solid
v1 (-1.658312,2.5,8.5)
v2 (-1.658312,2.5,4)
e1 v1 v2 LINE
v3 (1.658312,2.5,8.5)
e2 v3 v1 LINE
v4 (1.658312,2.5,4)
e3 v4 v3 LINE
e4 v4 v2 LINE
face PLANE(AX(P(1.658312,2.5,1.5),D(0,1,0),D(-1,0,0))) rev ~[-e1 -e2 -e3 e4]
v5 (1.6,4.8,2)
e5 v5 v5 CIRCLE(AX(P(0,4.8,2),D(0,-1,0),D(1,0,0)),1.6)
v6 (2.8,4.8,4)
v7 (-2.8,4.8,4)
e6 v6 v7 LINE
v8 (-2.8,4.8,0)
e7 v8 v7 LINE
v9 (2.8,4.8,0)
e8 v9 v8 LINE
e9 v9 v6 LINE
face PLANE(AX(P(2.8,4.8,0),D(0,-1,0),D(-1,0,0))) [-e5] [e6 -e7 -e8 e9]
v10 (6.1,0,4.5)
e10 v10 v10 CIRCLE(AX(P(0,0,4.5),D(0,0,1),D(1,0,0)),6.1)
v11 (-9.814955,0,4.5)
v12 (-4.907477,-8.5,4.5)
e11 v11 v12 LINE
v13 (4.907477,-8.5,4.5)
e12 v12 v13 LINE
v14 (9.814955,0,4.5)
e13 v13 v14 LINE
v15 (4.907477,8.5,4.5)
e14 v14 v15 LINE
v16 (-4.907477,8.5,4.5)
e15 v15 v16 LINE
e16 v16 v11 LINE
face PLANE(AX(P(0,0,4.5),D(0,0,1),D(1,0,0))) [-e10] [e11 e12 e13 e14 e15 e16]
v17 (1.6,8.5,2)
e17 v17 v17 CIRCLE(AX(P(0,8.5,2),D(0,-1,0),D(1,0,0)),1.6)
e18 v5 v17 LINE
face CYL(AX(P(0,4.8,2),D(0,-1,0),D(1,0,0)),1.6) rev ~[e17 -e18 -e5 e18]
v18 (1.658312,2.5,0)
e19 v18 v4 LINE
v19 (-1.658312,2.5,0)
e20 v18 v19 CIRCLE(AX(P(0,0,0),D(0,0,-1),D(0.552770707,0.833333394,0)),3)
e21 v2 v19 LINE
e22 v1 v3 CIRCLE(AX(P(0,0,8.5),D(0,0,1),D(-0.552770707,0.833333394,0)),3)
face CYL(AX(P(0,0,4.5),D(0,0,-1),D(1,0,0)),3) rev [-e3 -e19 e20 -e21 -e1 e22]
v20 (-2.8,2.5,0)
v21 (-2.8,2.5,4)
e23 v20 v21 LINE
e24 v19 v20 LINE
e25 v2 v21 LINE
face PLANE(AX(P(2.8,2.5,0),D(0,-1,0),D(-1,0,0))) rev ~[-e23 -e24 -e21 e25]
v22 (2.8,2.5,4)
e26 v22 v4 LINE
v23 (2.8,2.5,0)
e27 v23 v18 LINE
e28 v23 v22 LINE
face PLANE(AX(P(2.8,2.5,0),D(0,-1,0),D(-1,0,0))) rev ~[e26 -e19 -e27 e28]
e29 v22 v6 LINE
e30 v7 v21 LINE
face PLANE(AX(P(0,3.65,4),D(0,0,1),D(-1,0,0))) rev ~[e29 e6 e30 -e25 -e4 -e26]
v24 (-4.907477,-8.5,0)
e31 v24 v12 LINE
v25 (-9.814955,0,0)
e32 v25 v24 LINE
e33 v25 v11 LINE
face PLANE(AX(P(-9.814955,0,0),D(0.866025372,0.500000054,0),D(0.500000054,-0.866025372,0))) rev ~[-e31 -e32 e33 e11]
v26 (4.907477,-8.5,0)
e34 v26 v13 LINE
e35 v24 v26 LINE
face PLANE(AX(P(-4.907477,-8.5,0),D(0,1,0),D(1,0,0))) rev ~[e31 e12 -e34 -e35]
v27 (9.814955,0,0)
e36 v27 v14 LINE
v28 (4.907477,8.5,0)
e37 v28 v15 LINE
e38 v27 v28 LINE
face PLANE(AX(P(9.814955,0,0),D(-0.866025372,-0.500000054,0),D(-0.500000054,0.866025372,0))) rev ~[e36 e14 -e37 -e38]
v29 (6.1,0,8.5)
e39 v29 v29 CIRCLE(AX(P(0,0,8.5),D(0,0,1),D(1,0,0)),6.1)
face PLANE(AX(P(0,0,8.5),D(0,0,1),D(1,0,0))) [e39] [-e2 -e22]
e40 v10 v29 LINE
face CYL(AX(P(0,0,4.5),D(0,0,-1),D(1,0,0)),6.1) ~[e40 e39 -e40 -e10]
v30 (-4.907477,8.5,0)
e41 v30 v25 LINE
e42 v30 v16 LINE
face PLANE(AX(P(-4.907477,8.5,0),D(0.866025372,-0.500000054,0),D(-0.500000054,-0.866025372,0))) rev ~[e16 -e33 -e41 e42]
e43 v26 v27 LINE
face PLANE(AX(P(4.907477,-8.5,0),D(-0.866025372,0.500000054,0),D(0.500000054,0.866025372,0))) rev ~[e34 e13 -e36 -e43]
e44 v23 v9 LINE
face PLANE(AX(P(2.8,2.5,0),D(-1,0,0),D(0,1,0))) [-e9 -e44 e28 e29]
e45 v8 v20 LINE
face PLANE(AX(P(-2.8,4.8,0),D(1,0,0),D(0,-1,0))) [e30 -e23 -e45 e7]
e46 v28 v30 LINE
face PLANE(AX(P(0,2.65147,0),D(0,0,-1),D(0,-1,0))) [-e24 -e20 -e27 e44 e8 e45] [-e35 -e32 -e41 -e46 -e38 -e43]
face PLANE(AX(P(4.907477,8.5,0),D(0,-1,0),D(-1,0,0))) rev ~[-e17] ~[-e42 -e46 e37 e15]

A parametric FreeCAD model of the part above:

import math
import FreeCAD as App
import Part
import Sketcher
from FreeCAD import Vector
Q = App.Units.Quantity

doc = App.newDocument("Part")
params = doc.addObject("Spreadsheet::Sheet", "Params")
for row, (alias, value) in enumerate([
    ("sketch1_diameter", "6 mm"),
    ("pad1_length", "4.5 mm"),
    ("sketch2_diameter", "6 mm"),
    ("sketch2_diameter2", "12.2 mm"),
    ("pad2_length", "10 mm"),
    ("sketch3_radius", "2.999999 mm"),
    ("pad3_length", "13 mm"),
    ("sketch4_diameter", "12.2 mm"),
    ("pocket1_length", "6 mm"),
    ("sketch5_radius", "2.999999 mm"),
    ("pad4_length", "1.5 mm"),
    ("sketch6_width", "5.6 mm"),
    ("sketch6_height", "2.3 mm"),
    ("pocket2_length", "4 mm"),
    ("sketch7_diameter", "3.2 mm"),
], start=1):
    params.set(f"A{row}", alias)
    params.set(f"B{row}", "=" + value)
    params.setAlias(f"B{row}", alias)

body = doc.addObject("PartDesign::Body", "Body")

# Sketch on XY plane
sketch1 = body.newObject("Sketcher::SketchObject", "Sketch")
sketch1.AttachmentSupport = (doc.getObject("XY_Plane"), [""])
sketch1.MapMode = "FlatFace"
sketch1.addGeometry([
    Part.LineSegment(Vector(9.814955, 0, 0), Vector(4.907477, 8.5, 0)),  # 0
    Part.LineSegment(Vector(4.907477, 8.5, 0), Vector(-4.907477, 8.5, 0)),  # 1
    Part.LineSegment(Vector(-4.907477, 8.5, 0), Vector(-9.814955, 0, 0)),  # 2
    Part.LineSegment(Vector(-9.814955, 0, 0), Vector(-4.907477, -8.5, 0)),  # 3
    Part.LineSegment(Vector(-4.907477, -8.5, 0), Vector(4.907477, -8.5, 0)),  # 4
    Part.LineSegment(Vector(4.907477, -8.5, 0), Vector(9.814955, 0, 0)),  # 5
    Part.Circle(Vector(0, 0, 0), Vector(0, 0, 1), 3),  # 6
], False)
sketch1.addConstraint([
    Sketcher.Constraint("Coincident", 0, 2, 1, 1),
    Sketcher.Constraint("Coincident", 1, 2, 2, 1),
    Sketcher.Constraint("Coincident", 2, 2, 3, 1),
    Sketcher.Constraint("Coincident", 3, 2, 4, 1),
    Sketcher.Constraint("Coincident", 4, 2, 5, 1),
    Sketcher.Constraint("Coincident", 5, 2, 0, 1),
    Sketcher.Constraint("Horizontal", 1),
    Sketcher.Constraint("Horizontal", 4),
    Sketcher.Constraint("Coincident", 6, 3, -1, 1),
    Sketcher.Constraint("Symmetric", 0, 2, 3, 2, -1, 1),
    Sketcher.Constraint("Symmetric", 2, 2, 5, 2, -1, 1),
    Sketcher.Constraint("PointOnObject", 2, 2, -1),
    Sketcher.Constraint("Parallel", 2, 5),
    Sketcher.Constraint("Vertical", 1, 2, 3, 2),
    Sketcher.Constraint("Diameter", 6, Q("6 mm")),
    Sketcher.Constraint("Angle", 0, Q("120.000004 deg")),
    Sketcher.Constraint("DistanceY", 3, 2, 1, 2, Q("17 mm")),
    Sketcher.Constraint("DistanceX", 1, 2, 1, 1, Q("9.814954 mm")),
])
sketch1.setExpression("Constraints[14]", "Params.sketch1_diameter")
pad1 = body.newObject("PartDesign::Pad", "Pad")
pad1.Profile = sketch1
pad1.setExpression("Length", "Params.pad1_length")

# Sketch on XY plane
sketch2 = body.newObject("Sketcher::SketchObject", "Sketch001")
sketch2.AttachmentSupport = (doc.getObject("XY_Plane"), [""])
sketch2.MapMode = "FlatFace"
sketch2.AttachmentOffset = App.Placement(Vector(0, 0, 4.5), App.Rotation())
sketch2.addGeometry([
    Part.Circle(Vector(0, 0, 0), Vector(0, 0, 1), 6.1),
    Part.Circle(Vector(0, 0, 0), Vector(0, 0, 1), 3),
], False)
sketch2.addConstraint([
    Sketcher.Constraint("Coincident", 0, 3, -1, 1),
    Sketcher.Constraint("Coincident", 1, 3, -1, 1),
    Sketcher.Constraint("Diameter", 1, Q("6 mm")),
    Sketcher.Constraint("Diameter", 0, Q("12.2 mm")),
])
sketch2.setExpression("Constraints[2]", "Params.sketch2_diameter")
sketch2.setExpression("Constraints[3]", "Params.sketch2_diameter2")
pad2 = body.newObject("PartDesign::Pad", "Pad001")
pad2.Profile = sketch2
pad2.setExpression("Length", "Params.pad2_length")

# Sketch on XY plane
sketch3 = body.newObject("Sketcher::SketchObject", "Sketch002")
sketch3.AttachmentSupport = (doc.getObject("XY_Plane"), [""])
sketch3.MapMode = "FlatFace"
sketch3.AttachmentOffset = App.Placement(Vector(0, 0, 14.5), App.Rotation())
sketch3.addGeometry([
    Part.LineSegment(Vector(-1.658312, 2.5, 0), Vector(1.658312, 2.5, 0)),
    Part.ArcOfCircle(Part.Circle(Vector(0, 0.000001, 0), Vector(0, 0, 1), 2.999999), math.radians(56.442683), math.radians(123.557317)),
], False)
sketch3.addConstraint([
    Sketcher.Constraint("Coincident", 0, 1, 1, 2),
    Sketcher.Constraint("Coincident", 1, 1, 0, 2),
    Sketcher.Constraint("Horizontal", 0),
    Sketcher.Constraint("Coincident", 1, 3, -1, 1),
    Sketcher.Constraint("Radius", 1, Q("2.999999 mm")),
    Sketcher.Constraint("DistanceY", -1, 1, 0, 1, Q("2.5 mm")),
])
sketch3.setExpression("Constraints[4]", "Params.sketch3_radius")
pad3 = body.newObject("PartDesign::Pad", "Pad002")
pad3.Profile = sketch3
pad3.setExpression("Length", "Params.pad3_length")
pad3.Reversed = True

# Sketch on XY plane
sketch4 = body.newObject("Sketcher::SketchObject", "Sketch003")
sketch4.AttachmentSupport = (doc.getObject("XY_Plane"), [""])
sketch4.MapMode = "FlatFace"
sketch4.AttachmentOffset = App.Placement(Vector(0, 0, 14.5), App.Rotation())
sketch4.addGeometry(Part.Circle(Vector(0, 0, 0), Vector(0, 0, 1), 6.1), False)
sketch4.addConstraint([
    Sketcher.Constraint("Coincident", 0, 3, -1, 1),
    Sketcher.Constraint("Diameter", 0, Q("12.2 mm")),
])
sketch4.setExpression("Constraints[1]", "Params.sketch4_diameter")
pocket1 = body.newObject("PartDesign::Pocket", "Pocket")
pocket1.Profile = sketch4
pocket1.setExpression("Length", "Params.pocket1_length")

# Sketch on XY plane
sketch5 = body.newObject("Sketcher::SketchObject", "Sketch004")
sketch5.AttachmentSupport = (doc.getObject("XY_Plane"), [""])
sketch5.MapMode = "FlatFace"
sketch5.AttachmentOffset = App.Placement(Vector(0, 0, 1.5), App.Rotation())
sketch5.addGeometry([
    Part.LineSegment(Vector(1.658312, 2.5, 0), Vector(-1.658312, 2.5, 0)),
    Part.ArcOfCircle(Part.Circle(Vector(0, 0.000001, 0), Vector(0, 0, 1), 2.999999), math.radians(56.442683), math.radians(123.557317)),
], False)
sketch5.addConstraint([
    Sketcher.Constraint("Coincident", 0, 1, 1, 1),
    Sketcher.Constraint("Coincident", 1, 2, 0, 2),
    Sketcher.Constraint("Horizontal", 0),
    Sketcher.Constraint("Coincident", 1, 3, -1, 1),
    Sketcher.Constraint("Radius", 1, Q("2.999999 mm")),
    Sketcher.Constraint("DistanceY", -1, 1, 0, 1, Q("2.5 mm")),
])
sketch5.setExpression("Constraints[4]", "Params.sketch5_radius")
pad4 = body.newObject("PartDesign::Pad", "Pad003")
pad4.Profile = sketch5
pad4.setExpression("Length", "Params.pad4_length")
pad4.Reversed = True

# Sketch on XY plane
sketch6 = body.newObject("Sketcher::SketchObject", "Sketch005")
sketch6.AttachmentSupport = (doc.getObject("XY_Plane"), [""])
sketch6.MapMode = "FlatFace"
sketch6.addGeometry([
    Part.LineSegment(Vector(2.8, 4.8, 0), Vector(2.8, 2.5, 0)),
    Part.LineSegment(Vector(2.8, 2.5, 0), Vector(-2.8, 2.5, 0)),
    Part.LineSegment(Vector(-2.8, 2.5, 0), Vector(-2.8, 4.8, 0)),
    Part.LineSegment(Vector(-2.8, 4.8, 0), Vector(2.8, 4.8, 0)),
], False)
sketch6.addConstraint([
    Sketcher.Constraint("Coincident", 0, 2, 1, 1),
    Sketcher.Constraint("Coincident", 1, 2, 2, 1),
    Sketcher.Constraint("Coincident", 2, 2, 3, 1),
    Sketcher.Constraint("Coincident", 3, 2, 0, 1),
    Sketcher.Constraint("Vertical", 0),
    Sketcher.Constraint("Horizontal", 1),
    Sketcher.Constraint("Vertical", 2),
    Sketcher.Constraint("Horizontal", 3),
    Sketcher.Constraint("DistanceX", 1, 2, 1, 1, Q("5.6 mm")),
    Sketcher.Constraint("DistanceY", 0, 2, 0, 1, Q("2.3 mm")),
    Sketcher.Constraint("DistanceX", -1, 1, 0, 2, Q("2.8 mm")),
    Sketcher.Constraint("DistanceY", -1, 1, 0, 2, Q("2.5 mm")),
])
sketch6.setExpression("Constraints[8]", "Params.sketch6_width")
sketch6.setExpression("Constraints[9]", "Params.sketch6_height")
pocket2 = body.newObject("PartDesign::Pocket", "Pocket001")
pocket2.Profile = sketch6
pocket2.setExpression("Length", "Params.pocket2_length")
pocket2.Reversed = True

# Sketch on XZ plane
sketch7 = body.newObject("Sketcher::SketchObject", "Sketch006")
sketch7.AttachmentSupport = (doc.getObject("XZ_Plane"), [""])
sketch7.MapMode = "FlatFace"
sketch7.AttachmentOffset = App.Placement(Vector(0, 0, -4.8), App.Rotation())
sketch7.addGeometry(Part.Circle(Vector(0, 2, 0), Vector(0, 0, 1), 1.6), False)
sketch7.addConstraint([
    Sketcher.Constraint("PointOnObject", 0, 3, -2),
    Sketcher.Constraint("Diameter", 0, Q("3.2 mm")),
    Sketcher.Constraint("DistanceY", -1, 1, 0, 3, Q("2 mm")),
])
sketch7.setExpression("Constraints[1]", "Params.sketch7_diameter")
pocket3 = body.newObject("PartDesign::Pocket", "Pocket002")
pocket3.Profile = sketch7
pocket3.Type = "ThroughAll"

doc.recompute()
